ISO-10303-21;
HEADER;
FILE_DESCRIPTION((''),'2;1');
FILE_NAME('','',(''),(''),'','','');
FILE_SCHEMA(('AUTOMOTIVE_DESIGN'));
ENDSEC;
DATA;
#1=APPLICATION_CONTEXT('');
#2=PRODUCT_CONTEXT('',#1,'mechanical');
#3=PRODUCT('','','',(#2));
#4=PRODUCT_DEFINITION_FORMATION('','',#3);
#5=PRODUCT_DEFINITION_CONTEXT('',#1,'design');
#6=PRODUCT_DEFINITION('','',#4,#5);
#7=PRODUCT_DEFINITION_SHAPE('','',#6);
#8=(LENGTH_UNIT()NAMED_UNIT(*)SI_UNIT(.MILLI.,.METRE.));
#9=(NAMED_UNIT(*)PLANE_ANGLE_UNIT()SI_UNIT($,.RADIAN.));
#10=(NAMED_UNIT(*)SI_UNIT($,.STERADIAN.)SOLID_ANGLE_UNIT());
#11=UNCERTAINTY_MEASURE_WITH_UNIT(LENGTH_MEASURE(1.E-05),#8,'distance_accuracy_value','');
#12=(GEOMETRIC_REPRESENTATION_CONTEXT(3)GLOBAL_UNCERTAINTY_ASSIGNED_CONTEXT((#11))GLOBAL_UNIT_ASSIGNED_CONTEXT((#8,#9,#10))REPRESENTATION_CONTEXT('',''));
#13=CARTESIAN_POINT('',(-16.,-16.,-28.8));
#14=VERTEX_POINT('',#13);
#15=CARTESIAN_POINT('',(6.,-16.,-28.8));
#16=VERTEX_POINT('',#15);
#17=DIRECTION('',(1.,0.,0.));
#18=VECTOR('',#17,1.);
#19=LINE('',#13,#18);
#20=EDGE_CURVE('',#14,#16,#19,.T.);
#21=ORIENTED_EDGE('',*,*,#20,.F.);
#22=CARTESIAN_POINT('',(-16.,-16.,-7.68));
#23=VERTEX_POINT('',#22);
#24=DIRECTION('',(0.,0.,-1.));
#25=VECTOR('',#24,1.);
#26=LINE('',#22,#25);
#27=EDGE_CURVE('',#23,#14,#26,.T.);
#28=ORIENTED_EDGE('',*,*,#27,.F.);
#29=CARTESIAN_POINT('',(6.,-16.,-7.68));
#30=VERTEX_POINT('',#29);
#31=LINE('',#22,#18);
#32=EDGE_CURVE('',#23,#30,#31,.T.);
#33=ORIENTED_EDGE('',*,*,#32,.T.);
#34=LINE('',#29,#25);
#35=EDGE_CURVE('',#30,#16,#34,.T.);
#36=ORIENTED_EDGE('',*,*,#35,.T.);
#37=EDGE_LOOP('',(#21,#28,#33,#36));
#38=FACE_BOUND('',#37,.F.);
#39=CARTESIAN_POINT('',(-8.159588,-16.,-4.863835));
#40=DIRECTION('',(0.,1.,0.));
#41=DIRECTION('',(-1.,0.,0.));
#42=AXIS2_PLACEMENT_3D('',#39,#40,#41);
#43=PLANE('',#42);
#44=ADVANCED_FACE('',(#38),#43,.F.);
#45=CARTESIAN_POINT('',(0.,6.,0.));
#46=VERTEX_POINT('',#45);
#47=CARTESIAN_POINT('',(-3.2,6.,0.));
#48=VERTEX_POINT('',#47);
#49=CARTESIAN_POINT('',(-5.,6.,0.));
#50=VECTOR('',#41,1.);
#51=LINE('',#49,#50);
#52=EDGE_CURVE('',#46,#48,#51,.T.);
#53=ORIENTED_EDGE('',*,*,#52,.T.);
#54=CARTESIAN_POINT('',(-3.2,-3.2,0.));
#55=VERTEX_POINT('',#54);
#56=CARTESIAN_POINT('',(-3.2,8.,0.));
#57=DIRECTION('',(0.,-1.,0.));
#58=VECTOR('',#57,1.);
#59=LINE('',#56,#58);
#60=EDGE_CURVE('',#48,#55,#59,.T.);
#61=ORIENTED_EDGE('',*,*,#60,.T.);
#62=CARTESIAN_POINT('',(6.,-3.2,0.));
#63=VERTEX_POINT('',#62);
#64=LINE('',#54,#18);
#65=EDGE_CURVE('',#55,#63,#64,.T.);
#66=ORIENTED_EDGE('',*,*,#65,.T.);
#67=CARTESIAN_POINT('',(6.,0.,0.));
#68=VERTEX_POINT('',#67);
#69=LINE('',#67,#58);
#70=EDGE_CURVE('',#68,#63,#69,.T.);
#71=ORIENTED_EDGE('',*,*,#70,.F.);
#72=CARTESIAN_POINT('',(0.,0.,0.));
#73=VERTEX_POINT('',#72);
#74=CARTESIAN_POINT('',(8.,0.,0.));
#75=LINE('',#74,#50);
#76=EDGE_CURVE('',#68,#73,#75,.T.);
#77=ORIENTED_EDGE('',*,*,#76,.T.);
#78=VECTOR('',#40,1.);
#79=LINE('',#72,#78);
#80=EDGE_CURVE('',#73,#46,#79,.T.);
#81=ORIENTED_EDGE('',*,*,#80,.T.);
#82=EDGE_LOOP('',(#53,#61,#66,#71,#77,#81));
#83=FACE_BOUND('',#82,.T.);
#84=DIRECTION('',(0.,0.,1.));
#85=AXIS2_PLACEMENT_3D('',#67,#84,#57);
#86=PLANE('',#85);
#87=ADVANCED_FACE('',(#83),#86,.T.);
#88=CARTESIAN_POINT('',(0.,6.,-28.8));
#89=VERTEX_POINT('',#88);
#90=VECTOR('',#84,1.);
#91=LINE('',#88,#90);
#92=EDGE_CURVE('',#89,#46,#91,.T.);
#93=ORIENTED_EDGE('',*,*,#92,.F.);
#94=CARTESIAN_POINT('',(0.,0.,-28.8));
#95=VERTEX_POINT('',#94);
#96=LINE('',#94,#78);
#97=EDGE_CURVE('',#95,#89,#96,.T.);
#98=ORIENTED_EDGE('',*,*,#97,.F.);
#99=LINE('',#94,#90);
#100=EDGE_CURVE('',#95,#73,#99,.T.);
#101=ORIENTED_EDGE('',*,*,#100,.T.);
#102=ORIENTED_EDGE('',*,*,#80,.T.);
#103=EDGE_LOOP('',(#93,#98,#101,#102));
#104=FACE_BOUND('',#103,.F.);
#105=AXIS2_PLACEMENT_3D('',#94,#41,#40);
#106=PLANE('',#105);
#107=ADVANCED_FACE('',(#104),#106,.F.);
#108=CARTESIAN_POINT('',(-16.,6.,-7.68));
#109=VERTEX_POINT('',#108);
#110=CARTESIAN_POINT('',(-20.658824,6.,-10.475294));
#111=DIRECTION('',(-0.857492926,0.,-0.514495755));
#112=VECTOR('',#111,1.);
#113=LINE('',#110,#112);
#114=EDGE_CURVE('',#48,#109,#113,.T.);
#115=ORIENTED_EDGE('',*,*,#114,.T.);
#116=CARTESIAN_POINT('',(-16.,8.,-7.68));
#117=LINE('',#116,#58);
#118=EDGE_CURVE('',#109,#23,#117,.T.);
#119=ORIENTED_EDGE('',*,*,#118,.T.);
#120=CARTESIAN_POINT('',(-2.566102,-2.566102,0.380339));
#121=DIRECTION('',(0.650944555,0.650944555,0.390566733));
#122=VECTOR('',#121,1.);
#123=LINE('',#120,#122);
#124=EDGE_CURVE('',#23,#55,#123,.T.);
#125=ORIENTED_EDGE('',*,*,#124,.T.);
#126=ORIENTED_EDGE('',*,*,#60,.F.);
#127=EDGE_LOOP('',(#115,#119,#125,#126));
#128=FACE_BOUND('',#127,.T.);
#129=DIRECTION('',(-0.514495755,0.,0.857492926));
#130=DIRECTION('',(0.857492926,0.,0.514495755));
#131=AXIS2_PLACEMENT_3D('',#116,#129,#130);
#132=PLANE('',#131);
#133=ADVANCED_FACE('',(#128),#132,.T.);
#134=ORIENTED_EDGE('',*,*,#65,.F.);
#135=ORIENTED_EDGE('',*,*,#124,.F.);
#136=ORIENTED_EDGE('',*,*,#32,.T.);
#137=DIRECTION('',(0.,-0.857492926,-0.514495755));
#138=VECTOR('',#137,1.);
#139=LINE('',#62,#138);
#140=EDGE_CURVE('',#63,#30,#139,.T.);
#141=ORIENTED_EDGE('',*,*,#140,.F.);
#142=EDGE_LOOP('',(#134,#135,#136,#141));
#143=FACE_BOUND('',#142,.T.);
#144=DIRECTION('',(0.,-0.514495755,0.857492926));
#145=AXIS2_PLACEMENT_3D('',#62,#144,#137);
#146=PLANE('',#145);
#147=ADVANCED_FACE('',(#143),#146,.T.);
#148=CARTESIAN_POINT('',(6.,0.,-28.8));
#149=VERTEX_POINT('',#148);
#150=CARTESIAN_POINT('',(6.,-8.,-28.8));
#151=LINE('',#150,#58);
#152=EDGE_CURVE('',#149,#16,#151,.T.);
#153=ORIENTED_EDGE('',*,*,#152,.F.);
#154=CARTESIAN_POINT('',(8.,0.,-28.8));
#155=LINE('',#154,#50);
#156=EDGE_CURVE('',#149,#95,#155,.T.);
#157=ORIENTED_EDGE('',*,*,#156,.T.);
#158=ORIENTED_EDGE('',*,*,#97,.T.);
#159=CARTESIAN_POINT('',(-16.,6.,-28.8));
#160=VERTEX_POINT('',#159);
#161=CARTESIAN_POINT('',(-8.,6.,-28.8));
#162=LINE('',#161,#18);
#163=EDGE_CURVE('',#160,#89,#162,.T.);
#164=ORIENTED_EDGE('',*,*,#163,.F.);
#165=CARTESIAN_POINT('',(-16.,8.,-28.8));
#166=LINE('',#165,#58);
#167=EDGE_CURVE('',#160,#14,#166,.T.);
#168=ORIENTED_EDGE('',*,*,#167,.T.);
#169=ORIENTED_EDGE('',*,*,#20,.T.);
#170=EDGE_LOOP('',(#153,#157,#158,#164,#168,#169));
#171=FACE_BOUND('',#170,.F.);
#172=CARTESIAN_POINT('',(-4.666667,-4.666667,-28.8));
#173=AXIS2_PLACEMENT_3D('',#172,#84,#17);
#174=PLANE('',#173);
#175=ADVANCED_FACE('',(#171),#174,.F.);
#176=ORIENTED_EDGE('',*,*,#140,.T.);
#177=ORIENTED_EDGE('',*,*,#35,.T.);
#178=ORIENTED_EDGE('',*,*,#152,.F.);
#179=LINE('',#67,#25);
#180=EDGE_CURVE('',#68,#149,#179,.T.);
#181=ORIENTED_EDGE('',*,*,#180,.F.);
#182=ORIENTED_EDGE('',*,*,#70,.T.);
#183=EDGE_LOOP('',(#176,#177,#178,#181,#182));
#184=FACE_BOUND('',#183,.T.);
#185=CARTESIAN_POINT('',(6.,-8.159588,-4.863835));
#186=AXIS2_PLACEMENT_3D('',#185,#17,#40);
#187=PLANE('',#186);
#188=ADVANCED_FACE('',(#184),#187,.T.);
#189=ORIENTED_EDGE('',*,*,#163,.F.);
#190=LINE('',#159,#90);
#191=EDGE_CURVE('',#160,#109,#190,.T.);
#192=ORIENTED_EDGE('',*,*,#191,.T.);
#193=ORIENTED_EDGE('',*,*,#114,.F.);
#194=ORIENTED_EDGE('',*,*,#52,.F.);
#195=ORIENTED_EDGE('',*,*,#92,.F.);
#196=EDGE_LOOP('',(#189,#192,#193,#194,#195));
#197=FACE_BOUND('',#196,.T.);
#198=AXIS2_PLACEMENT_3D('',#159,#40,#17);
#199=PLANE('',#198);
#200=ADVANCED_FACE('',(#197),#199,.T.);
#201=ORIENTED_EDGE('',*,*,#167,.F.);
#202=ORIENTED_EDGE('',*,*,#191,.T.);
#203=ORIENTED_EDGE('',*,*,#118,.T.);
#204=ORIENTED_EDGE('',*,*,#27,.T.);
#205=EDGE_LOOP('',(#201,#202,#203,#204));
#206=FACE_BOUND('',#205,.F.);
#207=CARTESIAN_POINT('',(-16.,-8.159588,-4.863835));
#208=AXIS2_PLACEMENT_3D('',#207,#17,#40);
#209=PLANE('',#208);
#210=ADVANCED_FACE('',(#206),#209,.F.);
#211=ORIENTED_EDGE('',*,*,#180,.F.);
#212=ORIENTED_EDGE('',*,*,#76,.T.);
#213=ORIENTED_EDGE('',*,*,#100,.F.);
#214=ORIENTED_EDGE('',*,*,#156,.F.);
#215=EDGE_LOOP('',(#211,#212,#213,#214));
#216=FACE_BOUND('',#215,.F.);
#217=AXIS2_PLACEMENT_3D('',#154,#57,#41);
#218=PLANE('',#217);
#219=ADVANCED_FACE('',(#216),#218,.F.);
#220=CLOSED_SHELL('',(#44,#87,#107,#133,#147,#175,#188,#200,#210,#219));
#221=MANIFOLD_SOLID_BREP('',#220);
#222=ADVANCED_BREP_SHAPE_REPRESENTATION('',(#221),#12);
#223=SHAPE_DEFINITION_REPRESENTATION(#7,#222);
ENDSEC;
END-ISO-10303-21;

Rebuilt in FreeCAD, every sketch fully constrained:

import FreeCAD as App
import Part
import Sketcher

V = App.Vector
Q = App.Units.Quantity


def add_polygon(sketch, points):
    """Adds a closed chain of lines whose ends are joined by coincident constraints."""
    first, n = sketch.GeometryCount, len(points)
    for a, b in zip(points, points[1:] + points[:1]):
        sketch.addGeometry(Part.LineSegment(App.Vector(*a, 0), App.Vector(*b, 0)), False)
    for i in range(n):
        sketch.addConstraint(Sketcher.Constraint("Coincident", first + i, 2, first + (i + 1) % n, 1))

doc = App.newDocument("Part")
body = doc.addObject("PartDesign::Body", "Body")

sketch1 = doc.addObject("Sketcher::SketchObject", "Sketch")
body.addObject(sketch1)
sketch1.AttachmentSupport = (doc.XY_Plane, [""])
sketch1.MapMode = "FlatFace"
sketch1.AttachmentOffset = App.Placement(V(0, 0, -28.8), App.Rotation())
add_polygon(sketch1, [(0, 0), (0, 8), (-16, 8), (-16, -16), (8, -16), (8, 0)])
sketch1.addConstraint(Sketcher.Constraint("Vertical", 0))
sketch1.addConstraint(Sketcher.Constraint("Horizontal", 1))
sketch1.addConstraint(Sketcher.Constraint("Vertical", 2))
sketch1.addConstraint(Sketcher.Constraint("Horizontal", 3))
sketch1.addConstraint(Sketcher.Constraint("Vertical", 4))
sketch1.addConstraint(Sketcher.Constraint("Horizontal", 5))
sketch1.addConstraint(Sketcher.Constraint("Coincident", 5, 2, -1, 1))
sketch1.addConstraint(Sketcher.Constraint("Equal", 5, 0))
sketch1.addConstraint(Sketcher.Constraint("Equal", 3, 2))
sketch1.addConstraint(Sketcher.Constraint("DistanceX", 1, 2, 1, 1, Q("16 mm")))
sketch1.addConstraint(Sketcher.Constraint("DistanceX", 3, 1, 3, 2, Q("24 mm")))
pad1 = doc.addObject("PartDesign::Pad", "Pad")
body.addObject(pad1)
pad1.Profile = sketch1
pad1.Length = 28.8

sketch2 = doc.addObject("Sketcher::SketchObject", "Sketch001")
body.addObject(sketch2)
sketch2.AttachmentSupport = (doc.YZ_Plane, [""])
sketch2.MapMode = "FlatFace"
sketch2.AttachmentOffset = App.Placement(V(0, 0, 8), App.Rotation())
add_polygon(sketch2, [(-16, -10), (0, 0), (-16, 0)])
sketch2.addConstraint(Sketcher.Constraint("Horizontal", 1))
sketch2.addConstraint(Sketcher.Constraint("Vertical", 2))
sketch2.addConstraint(Sketcher.Constraint("Coincident", 0, 2, -1, 1))
sketch2.addConstraint(Sketcher.Constraint("DistanceX", 1, 2, 1, 1, Q("16 mm")))
sketch2.addConstraint(Sketcher.Constraint("DistanceY", 2, 2, 2, 1, Q("9.6 mm")))
pocket1 = doc.addObject("PartDesign::Pocket", "Pocket")
body.addObject(pocket1)
pocket1.Profile = sketch2
pocket1.Length = 24

sketch3 = doc.addObject("Sketcher::SketchObject", "Sketch002")
body.addObject(sketch3)
sketch3.AttachmentSupport = (doc.XZ_Plane, [""])
sketch3.MapMode = "FlatFace"
sketch3.AttachmentOffset = App.Placement(V(0, 0, -8), App.Rotation())
add_polygon(sketch3, [(0, 0), (-16, -10), (-16, 0)])
sketch3.addConstraint(Sketcher.Constraint("Vertical", 1))
sketch3.addConstraint(Sketcher.Constraint("Horizontal", 2))
sketch3.addConstraint(Sketcher.Constraint("Coincident", 2, 2, -1, 1))
sketch3.addConstraint(Sketcher.Constraint("DistanceX", 2, 1, 2, 2, Q("16 mm")))
sketch3.addConstraint(Sketcher.Constraint("DistanceY", 1, 1, 1, 2, Q("9.6 mm")))
pocket2 = doc.addObject("PartDesign::Pocket", "Pocket001")
body.addObject(pocket2)
pocket2.Profile = sketch3
pocket2.Length = 24
pocket2.Reversed = True

sketch4 = doc.addObject("Sketcher::SketchObject", "Sketch003")
body.addObject(sketch4)
sketch4.AttachmentSupport = (doc.XY_Plane, [""])
sketch4.MapMode = "FlatFace"
sketch4.AttachmentOffset = App.Placement(V(0, 0, -28.8), App.Rotation())
add_polygon(sketch4, [(6, -16), (6, 0), (8, 0), (8, -16)])
sketch4.addConstraint(Sketcher.Constraint("Vertical", 0))
sketch4.addConstraint(Sketcher.Constraint("Horizontal", 1))
sketch4.addConstraint(Sketcher.Constraint("Vertical", 2))
sketch4.addConstraint(Sketcher.Constraint("Horizontal", 3))
sketch4.addConstraint(Sketcher.Constraint("PointOnObject", 0, 2, -1))
sketch4.addConstraint(Sketcher.Constraint("DistanceX", 1, 1, 1, 2, Q("2 mm")))
sketch4.addConstraint(Sketcher.Constraint("DistanceY", 0, 1, 0, 2, Q("16 mm")))
sketch4.addConstraint(Sketcher.Constraint("DistanceX", -1, 1, 0, 2, Q("6 mm")))
pocket3 = doc.addObject("PartDesign::Pocket", "Pocket002")
body.addObject(pocket3)
pocket3.Profile = sketch4
pocket3.Length = 30
pocket3.Reversed = True

sketch5 = doc.addObject("Sketcher::SketchObject", "Sketch004")
body.addObject(sketch5)
sketch5.AttachmentSupport = (doc.YZ_Plane, [""])
sketch5.MapMode = "FlatFace"
sketch5.AttachmentOffset = App.Placement(V(0, 0, 6), App.Rotation())
add_polygon(sketch5, [(0, 0), (-3.2, 0), (-16, -7.7), (-16, -10.9), (-3.2, -3.2), (0, -3.2)])
sketch5.addConstraint(Sketcher.Constraint("Horizontal", 0))
sketch5.addConstraint(Sketcher.Constraint("Vertical", 2))
sketch5.addConstraint(Sketcher.Constraint("Horizontal", 4))
sketch5.addConstraint(Sketcher.Constraint("Vertical", 5))
sketch5.addConstraint(Sketcher.Constraint("Coincident", 5, 2, -1, 1))
sketch5.addConstraint(Sketcher.Constraint("Parallel", 1, 3))
sketch5.addConstraint(Sketcher.Constraint("Vertical", 0, 2, 3, 2))
sketch5.addConstraint(Sketcher.Constraint("Equal", 4, 2))
sketch5.addConstraint(Sketcher.Constraint("DistanceX", 0, 2, 0, 1, Q("3.2 mm")))
sketch5.addConstraint(Sketcher.Constraint("DistanceX", 1, 2, -1, 1, Q("16 mm")))
sketch5.addConstraint(Sketcher.Constraint("DistanceY", 1, 2, -1, 1, Q("7.68 mm")))
pad2 = doc.addObject("PartDesign::Pad", "Pad001")
body.addObject(pad2)
pad2.Profile = sketch5
pad2.Length = 22
pad2.Reversed = True

sketch6 = doc.addObject("Sketcher::SketchObject", "Sketch005")
body.addObject(sketch6)
sketch6.AttachmentSupport = (doc.XZ_Plane, [""])
sketch6.MapMode = "FlatFace"
sketch6.AttachmentOffset = App.Placement(V(0, 0, -8), App.Rotation())
add_polygon(sketch6, [(0, 0), (0, -3.2), (-3.2, -3.2), (-16, -10.9), (-16, -7.7), (-3.2, 0)])
sketch6.addConstraint(Sketcher.Constraint("Vertical", 0))
sketch6.addConstraint(Sketcher.Constraint("Horizontal", 1))
sketch6.addConstraint(Sketcher.Constraint("Vertical", 3))
sketch6.addConstraint(Sketcher.Constraint("Horizontal", 5))
sketch6.addConstraint(Sketcher.Constraint("Coincident", 5, 2, -1, 1))
sketch6.addConstraint(Sketcher.Constraint("Parallel", 2, 4))
sketch6.addConstraint(Sketcher.Constraint("Vertical", 1, 2, 4, 2))
sketch6.addConstraint(Sketcher.Constraint("Equal", 5, 0))
sketch6.addConstraint(Sketcher.Constraint("DistanceX", 1, 2, 1, 1, Q("3.2 mm")))
sketch6.addConstraint(Sketcher.Constraint("DistanceX", 2, 2, -1, 1, Q("16 mm")))
sketch6.addConstraint(Sketcher.Constraint("DistanceY", 2, 2, -1, 1, Q("10.88 mm")))
pad3 = doc.addObject("PartDesign::Pad", "Pad002")
body.addObject(pad3)
pad3.Profile = sketch6
pad3.Length = 24

sketch7 = doc.addObject("Sketcher::SketchObject", "Sketch006")
body.addObject(sketch7)
sketch7.AttachmentSupport = (doc.XZ_Plane, [""])
sketch7.MapMode = "FlatFace"
sketch7.AttachmentOffset = App.Placement(V(0, 0, -8), App.Rotation())
add_polygon(sketch7, [(-3, 0), (-16, -8), (-16, 0)])
sketch7.addConstraint(Sketcher.Constraint("Vertical", 1))
sketch7.addConstraint(Sketcher.Constraint("Horizontal", 2))
sketch7.addConstraint(Sketcher.Constraint("PointOnObject", 1, 2, -1))
sketch7.addConstraint(Sketcher.Constraint("DistanceX", 2, 1, 2, 2, Q("12.8 mm")))
sketch7.addConstraint(Sketcher.Constraint("DistanceX", 0, 2, -1, 1, Q("16 mm")))
sketch7.addConstraint(Sketcher.Constraint("DistanceY", 1, 1, 1, 2, Q("7.68 mm")))
pocket4 = doc.addObject("PartDesign::Pocket", "Pocket003")
body.addObject(pocket4)
pocket4.Profile = sketch7
pocket4.Length = 24
pocket4.Reversed = True

sketch8 = doc.addObject("Sketcher::SketchObject", "Sketch007")
body.addObject(sketch8)
sketch8.AttachmentSupport = (doc.YZ_Plane, [""])
sketch8.MapMode = "FlatFace"
sketch8.AttachmentOffset = App.Placement(V(0, 0, 6), App.Rotation())
add_polygon(sketch8, [(-16, -8), (-3, 0), (-16, 0)])
sketch8.addConstraint(Sketcher.Constraint("Horizontal", 1))
sketch8.addConstraint(Sketcher.Constraint("Vertical", 2))
sketch8.addConstraint(Sketcher.Constraint("PointOnObject", 0, 2, -1))
sketch8.addConstraint(Sketcher.Constraint("DistanceX", 1, 2, 1, 1, Q("12.8 mm")))
sketch8.addConstraint(Sketcher.Constraint("DistanceX", 1, 2, -1, 1, Q("16 mm")))
sketch8.addConstraint(Sketcher.Constraint("DistanceY", 2, 2, 2, 1, Q("7.68 mm")))
pocket5 = doc.addObject("PartDesign::Pocket", "Pocket004")
body.addObject(pocket5)
pocket5.Profile = sketch8
pocket5.Length = 23

sketch9 = doc.addObject("Sketcher::SketchObject", "Sketch008")
body.addObject(sketch9)
sketch9.AttachmentSupport = (doc.XY_Plane, [""])
sketch9.MapMode = "FlatFace"
sketch9.AttachmentOffset = App.Placement(V(0, 0, -28.8), App.Rotation())
add_polygon(sketch9, [(-16, 6), (-16, 8), (0, 8), (0, 6)])
sketch9.addConstraint(Sketcher.Constraint("Vertical", 0))
sketch9.addConstraint(Sketcher.Constraint("Horizontal", 1))
sketch9.addConstraint(Sketcher.Constraint("Vertical", 2))
sketch9.addConstraint(Sketcher.Constraint("Horizontal", 3))
sketch9.addConstraint(Sketcher.Constraint("PointOnObject", 1, 2, -2))
sketch9.addConstraint(Sketcher.Constraint("DistanceX", 1, 1, 1, 2, Q("16 mm")))
sketch9.addConstraint(Sketcher.Constraint("DistanceY", 0, 1, 0, 2, Q("2 mm")))
sketch9.addConstraint(Sketcher.Constraint("DistanceY", -1, 1, 0, 2, Q("8 mm")))
pocket6 = doc.addObject("PartDesign::Pocket", "Pocket005")
body.addObject(pocket6)
pocket6.Profile = sketch9
pocket6.Length = 30
pocket6.Reversed = True

doc.recompute()
